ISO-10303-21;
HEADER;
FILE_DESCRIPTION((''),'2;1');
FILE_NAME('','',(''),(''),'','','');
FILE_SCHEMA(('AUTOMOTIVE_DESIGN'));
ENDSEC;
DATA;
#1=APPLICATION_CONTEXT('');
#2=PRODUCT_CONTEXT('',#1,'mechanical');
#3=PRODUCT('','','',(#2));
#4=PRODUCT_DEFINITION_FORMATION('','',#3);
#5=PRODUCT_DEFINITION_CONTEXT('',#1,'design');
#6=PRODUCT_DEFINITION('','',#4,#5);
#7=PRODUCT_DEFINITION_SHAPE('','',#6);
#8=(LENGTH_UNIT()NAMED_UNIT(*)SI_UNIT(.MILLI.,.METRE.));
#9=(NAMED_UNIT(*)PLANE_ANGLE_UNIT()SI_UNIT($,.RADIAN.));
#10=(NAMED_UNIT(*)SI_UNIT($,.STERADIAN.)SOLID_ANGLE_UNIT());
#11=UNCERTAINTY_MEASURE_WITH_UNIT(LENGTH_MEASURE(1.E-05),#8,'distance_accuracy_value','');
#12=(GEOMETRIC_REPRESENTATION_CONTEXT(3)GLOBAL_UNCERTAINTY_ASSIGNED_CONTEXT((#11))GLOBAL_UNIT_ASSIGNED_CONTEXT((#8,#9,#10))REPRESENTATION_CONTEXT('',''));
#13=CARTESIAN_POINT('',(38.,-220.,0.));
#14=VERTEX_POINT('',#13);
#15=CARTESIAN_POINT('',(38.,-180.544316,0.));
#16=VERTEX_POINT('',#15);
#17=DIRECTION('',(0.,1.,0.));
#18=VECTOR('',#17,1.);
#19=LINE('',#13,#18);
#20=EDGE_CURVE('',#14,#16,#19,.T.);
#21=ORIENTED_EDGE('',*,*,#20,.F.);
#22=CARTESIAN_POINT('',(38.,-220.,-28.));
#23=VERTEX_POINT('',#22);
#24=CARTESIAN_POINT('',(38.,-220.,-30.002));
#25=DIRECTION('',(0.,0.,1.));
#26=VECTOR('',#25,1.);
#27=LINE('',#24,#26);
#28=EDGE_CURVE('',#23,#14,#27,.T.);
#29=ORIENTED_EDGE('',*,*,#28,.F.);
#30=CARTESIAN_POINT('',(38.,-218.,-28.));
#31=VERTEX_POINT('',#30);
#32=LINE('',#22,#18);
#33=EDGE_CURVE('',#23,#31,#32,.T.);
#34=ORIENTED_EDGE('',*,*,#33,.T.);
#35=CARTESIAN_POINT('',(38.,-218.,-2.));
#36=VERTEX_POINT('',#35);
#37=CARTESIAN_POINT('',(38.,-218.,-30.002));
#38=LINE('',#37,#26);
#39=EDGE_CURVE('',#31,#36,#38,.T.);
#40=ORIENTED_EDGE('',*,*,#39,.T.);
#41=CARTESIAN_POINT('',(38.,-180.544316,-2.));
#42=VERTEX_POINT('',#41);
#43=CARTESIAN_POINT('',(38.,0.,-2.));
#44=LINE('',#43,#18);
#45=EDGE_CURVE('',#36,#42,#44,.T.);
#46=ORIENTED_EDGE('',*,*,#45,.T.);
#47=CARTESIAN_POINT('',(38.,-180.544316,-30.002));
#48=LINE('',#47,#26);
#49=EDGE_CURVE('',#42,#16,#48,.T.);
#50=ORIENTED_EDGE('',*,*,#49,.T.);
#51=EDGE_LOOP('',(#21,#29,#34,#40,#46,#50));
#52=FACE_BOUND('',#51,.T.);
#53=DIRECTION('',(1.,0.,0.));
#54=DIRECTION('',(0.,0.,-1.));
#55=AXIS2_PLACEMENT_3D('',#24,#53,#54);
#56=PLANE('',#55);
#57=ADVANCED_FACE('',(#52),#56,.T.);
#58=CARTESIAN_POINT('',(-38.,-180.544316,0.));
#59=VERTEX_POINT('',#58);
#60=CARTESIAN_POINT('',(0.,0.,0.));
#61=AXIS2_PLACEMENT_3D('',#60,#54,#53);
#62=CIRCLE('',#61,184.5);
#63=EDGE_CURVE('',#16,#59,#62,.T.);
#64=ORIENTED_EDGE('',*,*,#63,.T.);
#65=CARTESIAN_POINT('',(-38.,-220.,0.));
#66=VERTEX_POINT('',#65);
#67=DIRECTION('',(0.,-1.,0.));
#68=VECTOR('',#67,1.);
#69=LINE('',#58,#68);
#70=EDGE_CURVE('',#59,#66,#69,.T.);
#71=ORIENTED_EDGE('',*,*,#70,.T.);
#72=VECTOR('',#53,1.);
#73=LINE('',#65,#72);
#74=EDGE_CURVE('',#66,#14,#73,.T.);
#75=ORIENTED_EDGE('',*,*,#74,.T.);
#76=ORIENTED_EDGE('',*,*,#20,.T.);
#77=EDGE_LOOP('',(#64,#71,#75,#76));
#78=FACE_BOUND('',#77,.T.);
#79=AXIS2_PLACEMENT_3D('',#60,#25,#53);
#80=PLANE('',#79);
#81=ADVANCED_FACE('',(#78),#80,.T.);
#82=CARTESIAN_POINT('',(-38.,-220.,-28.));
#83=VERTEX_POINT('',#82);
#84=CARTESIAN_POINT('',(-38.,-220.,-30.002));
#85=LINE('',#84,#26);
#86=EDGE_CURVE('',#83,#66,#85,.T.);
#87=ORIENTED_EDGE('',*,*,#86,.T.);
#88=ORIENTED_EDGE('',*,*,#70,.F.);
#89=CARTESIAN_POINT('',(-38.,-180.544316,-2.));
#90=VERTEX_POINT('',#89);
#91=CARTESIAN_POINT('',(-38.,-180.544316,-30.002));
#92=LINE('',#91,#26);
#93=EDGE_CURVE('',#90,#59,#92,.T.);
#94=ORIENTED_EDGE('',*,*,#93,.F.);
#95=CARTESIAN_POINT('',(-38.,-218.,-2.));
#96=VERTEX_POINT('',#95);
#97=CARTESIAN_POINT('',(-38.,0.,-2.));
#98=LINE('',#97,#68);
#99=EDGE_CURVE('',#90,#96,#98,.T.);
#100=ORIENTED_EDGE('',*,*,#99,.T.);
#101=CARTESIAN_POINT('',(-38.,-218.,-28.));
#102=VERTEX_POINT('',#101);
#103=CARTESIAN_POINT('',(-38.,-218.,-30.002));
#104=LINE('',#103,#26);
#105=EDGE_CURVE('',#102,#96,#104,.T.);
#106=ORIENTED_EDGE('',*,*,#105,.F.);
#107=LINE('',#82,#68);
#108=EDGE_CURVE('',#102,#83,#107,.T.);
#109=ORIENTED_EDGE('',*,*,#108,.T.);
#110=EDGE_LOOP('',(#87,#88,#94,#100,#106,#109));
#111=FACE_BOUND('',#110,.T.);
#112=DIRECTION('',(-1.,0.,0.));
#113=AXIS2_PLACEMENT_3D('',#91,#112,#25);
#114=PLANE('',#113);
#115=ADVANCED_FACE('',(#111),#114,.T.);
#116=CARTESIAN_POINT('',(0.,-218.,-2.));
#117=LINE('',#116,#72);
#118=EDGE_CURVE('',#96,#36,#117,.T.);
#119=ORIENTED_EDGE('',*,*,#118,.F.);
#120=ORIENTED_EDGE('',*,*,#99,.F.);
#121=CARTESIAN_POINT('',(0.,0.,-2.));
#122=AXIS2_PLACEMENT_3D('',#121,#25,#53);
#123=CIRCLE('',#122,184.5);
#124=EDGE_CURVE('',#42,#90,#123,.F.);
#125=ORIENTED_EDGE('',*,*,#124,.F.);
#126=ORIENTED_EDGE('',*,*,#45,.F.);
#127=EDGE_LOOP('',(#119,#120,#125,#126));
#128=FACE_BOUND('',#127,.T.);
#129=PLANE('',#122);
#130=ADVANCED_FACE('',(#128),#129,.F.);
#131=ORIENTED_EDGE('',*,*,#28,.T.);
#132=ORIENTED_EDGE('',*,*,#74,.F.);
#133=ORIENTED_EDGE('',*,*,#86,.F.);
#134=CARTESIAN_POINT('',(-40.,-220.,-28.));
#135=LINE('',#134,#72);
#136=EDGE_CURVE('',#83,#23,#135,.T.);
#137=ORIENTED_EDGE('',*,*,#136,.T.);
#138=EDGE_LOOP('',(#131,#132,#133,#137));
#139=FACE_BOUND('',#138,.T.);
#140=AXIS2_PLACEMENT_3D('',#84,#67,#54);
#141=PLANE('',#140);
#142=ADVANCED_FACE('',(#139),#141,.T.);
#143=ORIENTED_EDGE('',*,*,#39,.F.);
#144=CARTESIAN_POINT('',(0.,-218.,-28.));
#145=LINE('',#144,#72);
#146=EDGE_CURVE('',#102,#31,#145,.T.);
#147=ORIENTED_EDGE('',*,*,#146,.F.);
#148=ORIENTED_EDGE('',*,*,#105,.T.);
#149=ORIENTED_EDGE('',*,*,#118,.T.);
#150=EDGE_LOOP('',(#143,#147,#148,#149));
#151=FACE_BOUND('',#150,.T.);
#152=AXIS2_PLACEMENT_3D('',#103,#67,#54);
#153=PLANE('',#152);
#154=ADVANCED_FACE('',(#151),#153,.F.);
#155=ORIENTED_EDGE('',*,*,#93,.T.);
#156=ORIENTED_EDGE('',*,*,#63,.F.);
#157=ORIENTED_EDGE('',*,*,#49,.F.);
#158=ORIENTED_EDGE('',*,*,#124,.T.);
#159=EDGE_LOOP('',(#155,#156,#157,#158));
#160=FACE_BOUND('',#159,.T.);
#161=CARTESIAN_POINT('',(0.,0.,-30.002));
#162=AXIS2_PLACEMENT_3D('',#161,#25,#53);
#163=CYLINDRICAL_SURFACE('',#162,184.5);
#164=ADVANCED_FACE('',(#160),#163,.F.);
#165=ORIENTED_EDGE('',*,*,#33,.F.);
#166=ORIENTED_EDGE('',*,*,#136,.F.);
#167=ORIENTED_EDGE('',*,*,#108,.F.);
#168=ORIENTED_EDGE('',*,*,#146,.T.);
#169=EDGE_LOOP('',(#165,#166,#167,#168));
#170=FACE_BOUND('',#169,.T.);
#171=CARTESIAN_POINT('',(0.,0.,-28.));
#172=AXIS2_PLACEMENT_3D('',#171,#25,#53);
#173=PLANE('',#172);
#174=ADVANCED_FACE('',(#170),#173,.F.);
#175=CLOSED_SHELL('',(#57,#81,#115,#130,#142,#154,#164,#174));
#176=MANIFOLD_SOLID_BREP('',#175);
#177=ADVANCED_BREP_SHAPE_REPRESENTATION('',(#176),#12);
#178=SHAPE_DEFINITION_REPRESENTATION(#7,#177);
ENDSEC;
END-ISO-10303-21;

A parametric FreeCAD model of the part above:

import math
import FreeCAD as App
import Part
import Sketcher


def faces_at(feature, points):
    """Names of the faces that lie closest to the given points."""
    faces = feature.Shape.Faces
    near = lambda p: min(range(len(faces)), key=lambda i: faces[i].distToShape(Part.Vertex(*p))[0])
    return sorted({f"Face{near(p) + 1}" for p in points})

doc = App.newDocument("Part")
params = doc.addObject("Spreadsheet::Sheet", "Params")
for row, (alias, value) in enumerate([
    ("sketch1_radius", "184.5 mm"),
    ("sketch1_width", "76 mm"),
    ("pad1_length", "28 mm"),
    ("thickness_wall", "2 mm"),
], start=1):
    params.set(f"A{row}", alias)
    params.set(f"B{row}", "=" + value)
    params.setAlias(f"B{row}", alias)

body = doc.addObject("PartDesign::Body", "Body")

sketch1 = body.newObject("Sketcher::SketchObject", "Sketch")
sketch1.AttachmentSupport = (doc.getObject("XY_Plane"), [""])
sketch1.MapMode = "FlatFace"
sketch1.addGeometry([
    Part.LineSegment(App.Vector(38, -220, 0), App.Vector(38, -181, 0)),
    Part.ArcOfCircle(Part.Circle(App.Vector(0, 0, 0), App.Vector(0, 0, 1), 184), math.radians(-102), math.radians(-78)),
    Part.LineSegment(App.Vector(-38, -181, 0), App.Vector(-38, -220, 0)),
    Part.LineSegment(App.Vector(-38, -220, 0), App.Vector(38, -220, 0)),
], False)
sketch1.addConstraint([
    Sketcher.Constraint("Coincident", 0, 2, 1, 2),
    Sketcher.Constraint("Coincident", 1, 1, 2, 1),
    Sketcher.Constraint("Coincident", 2, 2, 3, 1),
    Sketcher.Constraint("Coincident", 3, 2, 0, 1),
    Sketcher.Constraint("Vertical", 0),
    Sketcher.Constraint("Vertical", 2),
    Sketcher.Constraint("Horizontal", 3),
    Sketcher.Constraint("Coincident", 1, 3, -1, 1),
    Sketcher.Constraint("Horizontal", 0, 2, 1, 1),
    Sketcher.Constraint("Radius", 1, 184.5),
    Sketcher.Constraint("DistanceX", 3, 1, 3, 2, 76.0),
    Sketcher.Constraint("DistanceY", 2, 2, -1, 1, 220.0),
])
sketch1.setExpression("Constraints[9]", "Params.sketch1_radius")
sketch1.setExpression("Constraints[10]", "Params.sketch1_width")
pad1 = body.newObject("PartDesign::Pad", "Pad")
pad1.Profile = sketch1
pad1.setExpression("Length", "Params.pad1_length")
pad1.Reversed = True
doc.recompute()

thickness = body.newObject("PartDesign::Thickness", "Thickness")
thickness.Base = (pad1, faces_at(pad1, [
    (38, -200.272, -14),
    (0, -184.5, -14),
    (0, -200.272, -28),
    (-38, -200.272, -14),
]))
thickness.setExpression("Value", "Params.thickness_wall")
thickness.Reversed = True
thickness.Join = "Intersection"

doc.recompute()
